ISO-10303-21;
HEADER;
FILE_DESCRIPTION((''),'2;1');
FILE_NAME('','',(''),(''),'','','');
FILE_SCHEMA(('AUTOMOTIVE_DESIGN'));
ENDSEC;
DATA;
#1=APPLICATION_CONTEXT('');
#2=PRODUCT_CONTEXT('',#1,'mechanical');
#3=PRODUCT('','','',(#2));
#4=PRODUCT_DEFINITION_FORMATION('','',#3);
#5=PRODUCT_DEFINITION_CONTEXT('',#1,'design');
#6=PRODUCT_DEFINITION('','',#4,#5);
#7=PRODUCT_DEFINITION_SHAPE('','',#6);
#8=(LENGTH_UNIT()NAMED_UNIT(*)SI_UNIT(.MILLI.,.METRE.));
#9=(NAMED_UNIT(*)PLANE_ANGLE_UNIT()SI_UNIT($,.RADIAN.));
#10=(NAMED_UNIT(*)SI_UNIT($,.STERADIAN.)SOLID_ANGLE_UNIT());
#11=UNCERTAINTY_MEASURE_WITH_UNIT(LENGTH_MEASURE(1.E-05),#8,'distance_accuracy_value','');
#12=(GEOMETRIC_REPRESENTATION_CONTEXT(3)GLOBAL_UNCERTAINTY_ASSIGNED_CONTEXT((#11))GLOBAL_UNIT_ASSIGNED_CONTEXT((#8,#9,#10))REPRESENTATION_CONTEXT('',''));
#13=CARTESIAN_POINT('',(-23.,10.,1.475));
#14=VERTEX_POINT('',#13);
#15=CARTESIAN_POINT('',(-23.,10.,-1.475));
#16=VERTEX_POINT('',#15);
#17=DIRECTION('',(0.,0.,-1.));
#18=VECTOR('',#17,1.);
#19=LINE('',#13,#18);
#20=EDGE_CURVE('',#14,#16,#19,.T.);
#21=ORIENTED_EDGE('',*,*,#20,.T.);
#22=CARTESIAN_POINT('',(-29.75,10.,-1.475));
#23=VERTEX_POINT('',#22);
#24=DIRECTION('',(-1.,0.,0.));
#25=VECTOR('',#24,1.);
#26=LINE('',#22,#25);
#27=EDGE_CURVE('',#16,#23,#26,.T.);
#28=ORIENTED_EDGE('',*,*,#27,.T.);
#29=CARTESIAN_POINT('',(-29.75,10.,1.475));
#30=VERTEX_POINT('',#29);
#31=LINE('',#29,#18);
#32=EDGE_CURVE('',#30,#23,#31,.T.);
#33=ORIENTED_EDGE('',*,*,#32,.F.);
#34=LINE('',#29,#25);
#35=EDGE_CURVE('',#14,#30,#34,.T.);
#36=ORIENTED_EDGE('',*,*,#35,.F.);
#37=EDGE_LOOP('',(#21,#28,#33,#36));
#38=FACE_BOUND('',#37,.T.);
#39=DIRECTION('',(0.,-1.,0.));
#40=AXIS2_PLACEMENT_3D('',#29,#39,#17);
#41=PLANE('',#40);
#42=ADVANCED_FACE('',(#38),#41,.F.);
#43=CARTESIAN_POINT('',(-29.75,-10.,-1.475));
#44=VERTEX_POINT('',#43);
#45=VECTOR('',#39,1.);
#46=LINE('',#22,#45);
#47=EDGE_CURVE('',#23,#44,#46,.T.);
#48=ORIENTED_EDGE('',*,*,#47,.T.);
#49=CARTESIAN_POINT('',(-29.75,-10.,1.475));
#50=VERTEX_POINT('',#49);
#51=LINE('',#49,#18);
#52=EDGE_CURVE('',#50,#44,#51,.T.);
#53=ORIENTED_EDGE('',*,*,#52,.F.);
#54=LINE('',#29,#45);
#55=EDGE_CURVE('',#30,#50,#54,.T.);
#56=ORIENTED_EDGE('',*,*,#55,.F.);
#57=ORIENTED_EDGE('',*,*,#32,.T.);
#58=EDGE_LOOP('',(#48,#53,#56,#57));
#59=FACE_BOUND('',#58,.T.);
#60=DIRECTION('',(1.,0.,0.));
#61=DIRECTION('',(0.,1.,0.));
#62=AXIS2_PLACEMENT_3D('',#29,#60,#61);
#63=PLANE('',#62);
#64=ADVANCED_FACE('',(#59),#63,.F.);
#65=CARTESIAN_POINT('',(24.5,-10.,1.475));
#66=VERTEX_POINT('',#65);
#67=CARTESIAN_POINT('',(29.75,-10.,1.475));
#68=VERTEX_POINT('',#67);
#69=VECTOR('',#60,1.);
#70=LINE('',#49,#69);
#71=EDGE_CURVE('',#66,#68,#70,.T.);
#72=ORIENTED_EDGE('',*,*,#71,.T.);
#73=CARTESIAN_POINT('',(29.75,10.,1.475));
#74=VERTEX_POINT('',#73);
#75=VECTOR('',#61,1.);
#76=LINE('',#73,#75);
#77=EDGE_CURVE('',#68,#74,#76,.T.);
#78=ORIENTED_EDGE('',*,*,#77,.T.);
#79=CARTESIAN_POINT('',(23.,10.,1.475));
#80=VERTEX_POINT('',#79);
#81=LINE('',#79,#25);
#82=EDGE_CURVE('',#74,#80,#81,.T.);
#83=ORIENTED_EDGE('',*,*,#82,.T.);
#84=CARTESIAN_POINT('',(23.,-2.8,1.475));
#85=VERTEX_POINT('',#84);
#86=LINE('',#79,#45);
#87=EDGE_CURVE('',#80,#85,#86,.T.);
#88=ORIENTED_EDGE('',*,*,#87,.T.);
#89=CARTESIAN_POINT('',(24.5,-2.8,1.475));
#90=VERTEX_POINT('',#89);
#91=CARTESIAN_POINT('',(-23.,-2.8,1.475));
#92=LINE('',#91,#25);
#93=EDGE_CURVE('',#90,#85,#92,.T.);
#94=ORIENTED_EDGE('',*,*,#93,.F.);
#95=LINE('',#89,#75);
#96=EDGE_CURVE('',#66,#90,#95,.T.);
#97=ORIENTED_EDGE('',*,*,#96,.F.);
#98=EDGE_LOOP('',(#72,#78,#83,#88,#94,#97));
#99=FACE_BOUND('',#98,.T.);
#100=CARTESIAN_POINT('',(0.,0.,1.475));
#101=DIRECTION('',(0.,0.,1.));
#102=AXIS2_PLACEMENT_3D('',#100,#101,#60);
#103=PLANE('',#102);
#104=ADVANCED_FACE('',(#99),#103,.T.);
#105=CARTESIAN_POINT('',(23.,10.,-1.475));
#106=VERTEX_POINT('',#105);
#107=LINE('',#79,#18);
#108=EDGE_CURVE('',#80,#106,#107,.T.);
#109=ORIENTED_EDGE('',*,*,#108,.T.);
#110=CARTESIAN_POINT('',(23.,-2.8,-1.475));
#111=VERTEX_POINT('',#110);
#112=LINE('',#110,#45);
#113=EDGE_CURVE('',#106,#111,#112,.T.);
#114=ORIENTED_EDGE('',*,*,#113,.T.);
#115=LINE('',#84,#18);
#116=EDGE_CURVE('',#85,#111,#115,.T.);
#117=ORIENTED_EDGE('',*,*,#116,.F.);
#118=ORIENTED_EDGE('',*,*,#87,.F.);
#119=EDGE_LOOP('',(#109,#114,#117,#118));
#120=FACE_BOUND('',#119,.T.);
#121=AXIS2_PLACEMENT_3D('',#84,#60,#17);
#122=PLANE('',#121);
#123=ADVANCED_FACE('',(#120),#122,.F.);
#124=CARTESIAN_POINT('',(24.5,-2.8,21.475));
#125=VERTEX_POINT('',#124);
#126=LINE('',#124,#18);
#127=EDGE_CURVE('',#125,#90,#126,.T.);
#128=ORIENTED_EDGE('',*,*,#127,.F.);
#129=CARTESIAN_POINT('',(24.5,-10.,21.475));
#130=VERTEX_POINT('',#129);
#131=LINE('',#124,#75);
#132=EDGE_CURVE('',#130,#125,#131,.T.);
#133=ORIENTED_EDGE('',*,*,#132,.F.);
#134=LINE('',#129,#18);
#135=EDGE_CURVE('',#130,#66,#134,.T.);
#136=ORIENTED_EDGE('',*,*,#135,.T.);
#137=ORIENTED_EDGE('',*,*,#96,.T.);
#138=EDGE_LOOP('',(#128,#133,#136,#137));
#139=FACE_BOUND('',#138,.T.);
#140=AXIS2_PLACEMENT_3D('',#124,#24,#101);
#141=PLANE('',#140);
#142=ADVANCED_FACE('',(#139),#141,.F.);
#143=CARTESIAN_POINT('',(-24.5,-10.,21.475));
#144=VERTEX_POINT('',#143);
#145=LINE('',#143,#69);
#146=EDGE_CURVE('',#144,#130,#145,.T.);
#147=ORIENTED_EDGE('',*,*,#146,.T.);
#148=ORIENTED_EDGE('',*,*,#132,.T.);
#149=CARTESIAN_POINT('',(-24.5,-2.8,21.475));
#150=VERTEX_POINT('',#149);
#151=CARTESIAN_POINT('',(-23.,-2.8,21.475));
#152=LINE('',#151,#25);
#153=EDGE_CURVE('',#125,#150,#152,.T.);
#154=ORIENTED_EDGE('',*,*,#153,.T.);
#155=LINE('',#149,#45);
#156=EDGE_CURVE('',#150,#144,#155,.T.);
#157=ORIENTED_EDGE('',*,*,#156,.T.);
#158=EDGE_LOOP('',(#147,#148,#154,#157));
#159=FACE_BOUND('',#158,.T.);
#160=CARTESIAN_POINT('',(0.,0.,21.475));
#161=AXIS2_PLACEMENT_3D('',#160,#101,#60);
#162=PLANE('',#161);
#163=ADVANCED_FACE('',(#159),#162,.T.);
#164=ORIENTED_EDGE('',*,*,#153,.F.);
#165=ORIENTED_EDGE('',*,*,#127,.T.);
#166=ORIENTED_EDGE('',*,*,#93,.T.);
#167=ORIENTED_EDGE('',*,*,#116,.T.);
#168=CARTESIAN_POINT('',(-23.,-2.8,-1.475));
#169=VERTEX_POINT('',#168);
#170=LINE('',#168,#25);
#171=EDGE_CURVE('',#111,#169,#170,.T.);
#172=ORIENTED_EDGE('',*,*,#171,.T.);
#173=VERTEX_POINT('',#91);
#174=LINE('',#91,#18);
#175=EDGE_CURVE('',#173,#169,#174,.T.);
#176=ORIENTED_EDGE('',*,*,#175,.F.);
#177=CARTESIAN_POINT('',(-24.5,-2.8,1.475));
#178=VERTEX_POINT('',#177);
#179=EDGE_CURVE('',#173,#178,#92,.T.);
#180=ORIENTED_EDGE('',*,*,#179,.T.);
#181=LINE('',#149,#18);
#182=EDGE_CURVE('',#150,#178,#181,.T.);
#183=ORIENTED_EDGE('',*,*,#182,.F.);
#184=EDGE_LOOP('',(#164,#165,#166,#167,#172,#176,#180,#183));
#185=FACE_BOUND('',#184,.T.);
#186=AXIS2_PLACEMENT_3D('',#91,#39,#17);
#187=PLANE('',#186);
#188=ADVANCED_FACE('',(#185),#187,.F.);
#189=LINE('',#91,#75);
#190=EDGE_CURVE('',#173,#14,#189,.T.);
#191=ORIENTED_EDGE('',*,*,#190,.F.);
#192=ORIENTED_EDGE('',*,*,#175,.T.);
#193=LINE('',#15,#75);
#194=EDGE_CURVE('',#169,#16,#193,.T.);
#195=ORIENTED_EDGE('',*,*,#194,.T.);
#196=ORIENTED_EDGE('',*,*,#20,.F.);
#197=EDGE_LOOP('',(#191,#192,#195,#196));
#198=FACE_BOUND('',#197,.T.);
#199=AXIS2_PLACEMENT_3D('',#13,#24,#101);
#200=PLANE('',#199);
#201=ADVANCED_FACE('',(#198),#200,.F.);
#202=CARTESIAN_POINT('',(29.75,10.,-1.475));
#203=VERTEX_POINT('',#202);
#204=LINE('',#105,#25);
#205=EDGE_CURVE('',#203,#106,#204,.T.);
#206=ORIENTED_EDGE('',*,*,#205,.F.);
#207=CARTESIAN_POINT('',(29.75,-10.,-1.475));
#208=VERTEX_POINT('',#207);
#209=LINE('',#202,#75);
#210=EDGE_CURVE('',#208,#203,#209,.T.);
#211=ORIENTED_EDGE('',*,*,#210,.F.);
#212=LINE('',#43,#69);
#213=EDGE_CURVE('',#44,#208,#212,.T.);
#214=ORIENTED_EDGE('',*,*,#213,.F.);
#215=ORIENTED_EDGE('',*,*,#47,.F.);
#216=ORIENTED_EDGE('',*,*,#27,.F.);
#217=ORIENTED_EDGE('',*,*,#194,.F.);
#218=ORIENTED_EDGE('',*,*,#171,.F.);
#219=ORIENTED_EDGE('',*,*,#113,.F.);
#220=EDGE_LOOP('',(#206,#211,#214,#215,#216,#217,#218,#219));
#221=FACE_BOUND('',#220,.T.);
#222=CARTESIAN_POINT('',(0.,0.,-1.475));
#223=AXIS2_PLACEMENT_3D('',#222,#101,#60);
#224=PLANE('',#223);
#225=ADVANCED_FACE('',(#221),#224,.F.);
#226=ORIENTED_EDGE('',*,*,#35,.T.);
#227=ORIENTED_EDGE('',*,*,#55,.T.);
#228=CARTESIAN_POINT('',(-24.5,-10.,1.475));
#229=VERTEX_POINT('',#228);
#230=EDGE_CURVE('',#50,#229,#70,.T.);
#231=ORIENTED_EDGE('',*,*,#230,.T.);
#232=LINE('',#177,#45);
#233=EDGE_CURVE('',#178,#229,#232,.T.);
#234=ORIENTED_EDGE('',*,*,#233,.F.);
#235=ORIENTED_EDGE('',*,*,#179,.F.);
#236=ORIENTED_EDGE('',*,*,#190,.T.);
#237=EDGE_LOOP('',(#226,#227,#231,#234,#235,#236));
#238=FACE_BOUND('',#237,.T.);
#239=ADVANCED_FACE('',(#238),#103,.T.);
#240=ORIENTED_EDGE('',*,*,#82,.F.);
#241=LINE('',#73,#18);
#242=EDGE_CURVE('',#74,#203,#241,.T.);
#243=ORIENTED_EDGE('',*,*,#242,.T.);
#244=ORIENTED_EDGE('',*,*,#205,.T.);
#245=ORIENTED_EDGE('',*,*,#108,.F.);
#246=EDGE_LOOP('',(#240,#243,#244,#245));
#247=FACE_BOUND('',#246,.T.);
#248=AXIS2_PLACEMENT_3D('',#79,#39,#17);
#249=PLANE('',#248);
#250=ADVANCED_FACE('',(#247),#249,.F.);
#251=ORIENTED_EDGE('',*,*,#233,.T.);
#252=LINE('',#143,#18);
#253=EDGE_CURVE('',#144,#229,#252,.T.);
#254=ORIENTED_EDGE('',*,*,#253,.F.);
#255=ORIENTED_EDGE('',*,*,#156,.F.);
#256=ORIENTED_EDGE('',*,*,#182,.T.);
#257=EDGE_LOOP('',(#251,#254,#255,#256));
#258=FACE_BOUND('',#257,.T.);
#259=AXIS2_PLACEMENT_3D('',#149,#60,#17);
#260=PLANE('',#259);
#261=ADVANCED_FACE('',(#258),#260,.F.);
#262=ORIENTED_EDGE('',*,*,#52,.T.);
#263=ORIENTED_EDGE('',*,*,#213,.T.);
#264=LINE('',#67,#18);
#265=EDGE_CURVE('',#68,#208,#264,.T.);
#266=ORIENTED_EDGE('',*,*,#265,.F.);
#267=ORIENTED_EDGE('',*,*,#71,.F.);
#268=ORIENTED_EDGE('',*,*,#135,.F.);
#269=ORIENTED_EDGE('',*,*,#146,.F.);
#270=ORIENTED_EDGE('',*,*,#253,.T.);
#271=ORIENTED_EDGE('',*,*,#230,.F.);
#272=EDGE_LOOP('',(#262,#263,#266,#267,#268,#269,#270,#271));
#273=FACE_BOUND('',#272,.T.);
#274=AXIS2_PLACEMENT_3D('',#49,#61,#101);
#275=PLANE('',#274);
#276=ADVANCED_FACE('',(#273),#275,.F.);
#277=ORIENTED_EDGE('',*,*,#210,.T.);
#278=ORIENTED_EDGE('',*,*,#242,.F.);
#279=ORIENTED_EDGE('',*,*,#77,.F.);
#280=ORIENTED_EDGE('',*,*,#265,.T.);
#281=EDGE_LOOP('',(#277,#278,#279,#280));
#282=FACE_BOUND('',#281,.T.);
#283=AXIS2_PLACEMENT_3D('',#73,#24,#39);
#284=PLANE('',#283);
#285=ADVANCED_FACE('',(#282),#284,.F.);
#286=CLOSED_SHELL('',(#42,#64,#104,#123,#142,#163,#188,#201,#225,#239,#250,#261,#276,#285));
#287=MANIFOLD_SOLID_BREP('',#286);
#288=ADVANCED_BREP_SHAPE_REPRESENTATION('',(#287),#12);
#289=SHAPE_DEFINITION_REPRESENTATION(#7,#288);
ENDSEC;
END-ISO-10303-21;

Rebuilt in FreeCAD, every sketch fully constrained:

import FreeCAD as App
import Part
import Sketcher
Q = App.Units.Quantity


def add_polygon(sketch, points):
    """Adds a closed chain of lines whose ends are joined by coincident constraints."""
    first, n = sketch.GeometryCount, len(points)
    for a, b in zip(points, points[1:] + points[:1]):
        sketch.addGeometry(Part.LineSegment(App.Vector(*a, 0), App.Vector(*b, 0)), False)
    for i in range(n):
        sketch.addConstraint(Sketcher.Constraint("Coincident", first + i, 2, first + (i + 1) % n, 1))

doc = App.newDocument("Part")
params = doc.addObject("Spreadsheet::Sheet", "Params")
for row, (alias, value) in enumerate([
    ("sketch1_width", "46 mm"),
    ("sketch1_height", "20 mm"),
    ("sketch1_width2", "59.5 mm"),
    ("sketch1_height2", "12.8 mm"),
    ("pad1_length", "2.95 mm"),
    ("sketch2_width", "49 mm"),
    ("sketch2_height", "7.2 mm"),
    ("pad2_length", "20 mm"),
], start=1):
    params.set(f"A{row}", alias)
    params.set(f"B{row}", "=" + value)
    params.setAlias(f"B{row}", alias)

body = doc.addObject("PartDesign::Body", "Body")

sketch1 = body.newObject("Sketcher::SketchObject", "Sketch")
sketch1.AttachmentSupport = (doc.getObject("XY_Plane"), [""])
sketch1.MapMode = "FlatFace"
add_polygon(sketch1, [(-23, 10), (-30, 10), (-30, -10), (30, -10), (30, 10), (23, 10), (23, -3), (-23, -3)])
sketch1.addConstraint([
    Sketcher.Constraint("Horizontal", 0),
    Sketcher.Constraint("Vertical", 1),
    Sketcher.Constraint("Horizontal", 2),
    Sketcher.Constraint("Vertical", 3),
    Sketcher.Constraint("Horizontal", 4),
    Sketcher.Constraint("Vertical", 5),
    Sketcher.Constraint("Horizontal", 6),
    Sketcher.Constraint("Vertical", 7),
    Sketcher.Constraint("Symmetric", 0, 2, 2, 2, -1, 1),
    Sketcher.Constraint("Symmetric", 4, 2, 7, 2, -2),
    Sketcher.Constraint("DistanceX", 6, 2, 6, 1, Q("46 mm")),
    Sketcher.Constraint("DistanceY", 1, 2, 1, 1, Q("20 mm")),
    Sketcher.Constraint("DistanceX", 2, 1, 2, 2, Q("59.5 mm")),
    Sketcher.Constraint("DistanceY", 5, 2, 5, 1, Q("12.8 mm")),
])
sketch1.setExpression("Constraints[18]", "Params.sketch1_width")
sketch1.setExpression("Constraints[19]", "Params.sketch1_height")
sketch1.setExpression("Constraints[20]", "Params.sketch1_width2")
sketch1.setExpression("Constraints[21]", "Params.sketch1_height2")
pad1 = body.newObject("PartDesign::Pad", "Pad")
pad1.Profile = sketch1
pad1.setExpression("Length", "Params.pad1_length")
pad1.Midplane = True

sketch2 = body.newObject("Sketcher::SketchObject", "Sketch001")
sketch2.AttachmentSupport = (doc.getObject("XY_Plane"), [""])
sketch2.MapMode = "FlatFace"
sketch2.AttachmentOffset = App.Placement(App.Vector(0, 0, 1.475), App.Rotation())
add_polygon(sketch2, [(24, -3), (-24, -3), (-24, -10), (24, -10)])
sketch2.addConstraint([
    Sketcher.Constraint("Horizontal", 0),
    Sketcher.Constraint("Vertical", 1),
    Sketcher.Constraint("Horizontal", 2),
    Sketcher.Constraint("Vertical", 3),
    Sketcher.Constraint("DistanceX", 0, 2, 0, 1, Q("49 mm")),
    Sketcher.Constraint("DistanceY", 1, 2, 1, 1, Q("7.2 mm")),
    Sketcher.Constraint("DistanceY", 1, 2, -1, 1, Q("10 mm")),
    Sketcher.Constraint("DistanceX", 0, 2, -1, 1, Q("24.5 mm")),
])
sketch2.setExpression("Constraints[8]", "Params.sketch2_width")
sketch2.setExpression("Constraints[9]", "Params.sketch2_height")
pad2 = body.newObject("PartDesign::Pad", "Pad001")
pad2.Profile = sketch2
pad2.setExpression("Length", "Params.pad2_length")

doc.recompute()
